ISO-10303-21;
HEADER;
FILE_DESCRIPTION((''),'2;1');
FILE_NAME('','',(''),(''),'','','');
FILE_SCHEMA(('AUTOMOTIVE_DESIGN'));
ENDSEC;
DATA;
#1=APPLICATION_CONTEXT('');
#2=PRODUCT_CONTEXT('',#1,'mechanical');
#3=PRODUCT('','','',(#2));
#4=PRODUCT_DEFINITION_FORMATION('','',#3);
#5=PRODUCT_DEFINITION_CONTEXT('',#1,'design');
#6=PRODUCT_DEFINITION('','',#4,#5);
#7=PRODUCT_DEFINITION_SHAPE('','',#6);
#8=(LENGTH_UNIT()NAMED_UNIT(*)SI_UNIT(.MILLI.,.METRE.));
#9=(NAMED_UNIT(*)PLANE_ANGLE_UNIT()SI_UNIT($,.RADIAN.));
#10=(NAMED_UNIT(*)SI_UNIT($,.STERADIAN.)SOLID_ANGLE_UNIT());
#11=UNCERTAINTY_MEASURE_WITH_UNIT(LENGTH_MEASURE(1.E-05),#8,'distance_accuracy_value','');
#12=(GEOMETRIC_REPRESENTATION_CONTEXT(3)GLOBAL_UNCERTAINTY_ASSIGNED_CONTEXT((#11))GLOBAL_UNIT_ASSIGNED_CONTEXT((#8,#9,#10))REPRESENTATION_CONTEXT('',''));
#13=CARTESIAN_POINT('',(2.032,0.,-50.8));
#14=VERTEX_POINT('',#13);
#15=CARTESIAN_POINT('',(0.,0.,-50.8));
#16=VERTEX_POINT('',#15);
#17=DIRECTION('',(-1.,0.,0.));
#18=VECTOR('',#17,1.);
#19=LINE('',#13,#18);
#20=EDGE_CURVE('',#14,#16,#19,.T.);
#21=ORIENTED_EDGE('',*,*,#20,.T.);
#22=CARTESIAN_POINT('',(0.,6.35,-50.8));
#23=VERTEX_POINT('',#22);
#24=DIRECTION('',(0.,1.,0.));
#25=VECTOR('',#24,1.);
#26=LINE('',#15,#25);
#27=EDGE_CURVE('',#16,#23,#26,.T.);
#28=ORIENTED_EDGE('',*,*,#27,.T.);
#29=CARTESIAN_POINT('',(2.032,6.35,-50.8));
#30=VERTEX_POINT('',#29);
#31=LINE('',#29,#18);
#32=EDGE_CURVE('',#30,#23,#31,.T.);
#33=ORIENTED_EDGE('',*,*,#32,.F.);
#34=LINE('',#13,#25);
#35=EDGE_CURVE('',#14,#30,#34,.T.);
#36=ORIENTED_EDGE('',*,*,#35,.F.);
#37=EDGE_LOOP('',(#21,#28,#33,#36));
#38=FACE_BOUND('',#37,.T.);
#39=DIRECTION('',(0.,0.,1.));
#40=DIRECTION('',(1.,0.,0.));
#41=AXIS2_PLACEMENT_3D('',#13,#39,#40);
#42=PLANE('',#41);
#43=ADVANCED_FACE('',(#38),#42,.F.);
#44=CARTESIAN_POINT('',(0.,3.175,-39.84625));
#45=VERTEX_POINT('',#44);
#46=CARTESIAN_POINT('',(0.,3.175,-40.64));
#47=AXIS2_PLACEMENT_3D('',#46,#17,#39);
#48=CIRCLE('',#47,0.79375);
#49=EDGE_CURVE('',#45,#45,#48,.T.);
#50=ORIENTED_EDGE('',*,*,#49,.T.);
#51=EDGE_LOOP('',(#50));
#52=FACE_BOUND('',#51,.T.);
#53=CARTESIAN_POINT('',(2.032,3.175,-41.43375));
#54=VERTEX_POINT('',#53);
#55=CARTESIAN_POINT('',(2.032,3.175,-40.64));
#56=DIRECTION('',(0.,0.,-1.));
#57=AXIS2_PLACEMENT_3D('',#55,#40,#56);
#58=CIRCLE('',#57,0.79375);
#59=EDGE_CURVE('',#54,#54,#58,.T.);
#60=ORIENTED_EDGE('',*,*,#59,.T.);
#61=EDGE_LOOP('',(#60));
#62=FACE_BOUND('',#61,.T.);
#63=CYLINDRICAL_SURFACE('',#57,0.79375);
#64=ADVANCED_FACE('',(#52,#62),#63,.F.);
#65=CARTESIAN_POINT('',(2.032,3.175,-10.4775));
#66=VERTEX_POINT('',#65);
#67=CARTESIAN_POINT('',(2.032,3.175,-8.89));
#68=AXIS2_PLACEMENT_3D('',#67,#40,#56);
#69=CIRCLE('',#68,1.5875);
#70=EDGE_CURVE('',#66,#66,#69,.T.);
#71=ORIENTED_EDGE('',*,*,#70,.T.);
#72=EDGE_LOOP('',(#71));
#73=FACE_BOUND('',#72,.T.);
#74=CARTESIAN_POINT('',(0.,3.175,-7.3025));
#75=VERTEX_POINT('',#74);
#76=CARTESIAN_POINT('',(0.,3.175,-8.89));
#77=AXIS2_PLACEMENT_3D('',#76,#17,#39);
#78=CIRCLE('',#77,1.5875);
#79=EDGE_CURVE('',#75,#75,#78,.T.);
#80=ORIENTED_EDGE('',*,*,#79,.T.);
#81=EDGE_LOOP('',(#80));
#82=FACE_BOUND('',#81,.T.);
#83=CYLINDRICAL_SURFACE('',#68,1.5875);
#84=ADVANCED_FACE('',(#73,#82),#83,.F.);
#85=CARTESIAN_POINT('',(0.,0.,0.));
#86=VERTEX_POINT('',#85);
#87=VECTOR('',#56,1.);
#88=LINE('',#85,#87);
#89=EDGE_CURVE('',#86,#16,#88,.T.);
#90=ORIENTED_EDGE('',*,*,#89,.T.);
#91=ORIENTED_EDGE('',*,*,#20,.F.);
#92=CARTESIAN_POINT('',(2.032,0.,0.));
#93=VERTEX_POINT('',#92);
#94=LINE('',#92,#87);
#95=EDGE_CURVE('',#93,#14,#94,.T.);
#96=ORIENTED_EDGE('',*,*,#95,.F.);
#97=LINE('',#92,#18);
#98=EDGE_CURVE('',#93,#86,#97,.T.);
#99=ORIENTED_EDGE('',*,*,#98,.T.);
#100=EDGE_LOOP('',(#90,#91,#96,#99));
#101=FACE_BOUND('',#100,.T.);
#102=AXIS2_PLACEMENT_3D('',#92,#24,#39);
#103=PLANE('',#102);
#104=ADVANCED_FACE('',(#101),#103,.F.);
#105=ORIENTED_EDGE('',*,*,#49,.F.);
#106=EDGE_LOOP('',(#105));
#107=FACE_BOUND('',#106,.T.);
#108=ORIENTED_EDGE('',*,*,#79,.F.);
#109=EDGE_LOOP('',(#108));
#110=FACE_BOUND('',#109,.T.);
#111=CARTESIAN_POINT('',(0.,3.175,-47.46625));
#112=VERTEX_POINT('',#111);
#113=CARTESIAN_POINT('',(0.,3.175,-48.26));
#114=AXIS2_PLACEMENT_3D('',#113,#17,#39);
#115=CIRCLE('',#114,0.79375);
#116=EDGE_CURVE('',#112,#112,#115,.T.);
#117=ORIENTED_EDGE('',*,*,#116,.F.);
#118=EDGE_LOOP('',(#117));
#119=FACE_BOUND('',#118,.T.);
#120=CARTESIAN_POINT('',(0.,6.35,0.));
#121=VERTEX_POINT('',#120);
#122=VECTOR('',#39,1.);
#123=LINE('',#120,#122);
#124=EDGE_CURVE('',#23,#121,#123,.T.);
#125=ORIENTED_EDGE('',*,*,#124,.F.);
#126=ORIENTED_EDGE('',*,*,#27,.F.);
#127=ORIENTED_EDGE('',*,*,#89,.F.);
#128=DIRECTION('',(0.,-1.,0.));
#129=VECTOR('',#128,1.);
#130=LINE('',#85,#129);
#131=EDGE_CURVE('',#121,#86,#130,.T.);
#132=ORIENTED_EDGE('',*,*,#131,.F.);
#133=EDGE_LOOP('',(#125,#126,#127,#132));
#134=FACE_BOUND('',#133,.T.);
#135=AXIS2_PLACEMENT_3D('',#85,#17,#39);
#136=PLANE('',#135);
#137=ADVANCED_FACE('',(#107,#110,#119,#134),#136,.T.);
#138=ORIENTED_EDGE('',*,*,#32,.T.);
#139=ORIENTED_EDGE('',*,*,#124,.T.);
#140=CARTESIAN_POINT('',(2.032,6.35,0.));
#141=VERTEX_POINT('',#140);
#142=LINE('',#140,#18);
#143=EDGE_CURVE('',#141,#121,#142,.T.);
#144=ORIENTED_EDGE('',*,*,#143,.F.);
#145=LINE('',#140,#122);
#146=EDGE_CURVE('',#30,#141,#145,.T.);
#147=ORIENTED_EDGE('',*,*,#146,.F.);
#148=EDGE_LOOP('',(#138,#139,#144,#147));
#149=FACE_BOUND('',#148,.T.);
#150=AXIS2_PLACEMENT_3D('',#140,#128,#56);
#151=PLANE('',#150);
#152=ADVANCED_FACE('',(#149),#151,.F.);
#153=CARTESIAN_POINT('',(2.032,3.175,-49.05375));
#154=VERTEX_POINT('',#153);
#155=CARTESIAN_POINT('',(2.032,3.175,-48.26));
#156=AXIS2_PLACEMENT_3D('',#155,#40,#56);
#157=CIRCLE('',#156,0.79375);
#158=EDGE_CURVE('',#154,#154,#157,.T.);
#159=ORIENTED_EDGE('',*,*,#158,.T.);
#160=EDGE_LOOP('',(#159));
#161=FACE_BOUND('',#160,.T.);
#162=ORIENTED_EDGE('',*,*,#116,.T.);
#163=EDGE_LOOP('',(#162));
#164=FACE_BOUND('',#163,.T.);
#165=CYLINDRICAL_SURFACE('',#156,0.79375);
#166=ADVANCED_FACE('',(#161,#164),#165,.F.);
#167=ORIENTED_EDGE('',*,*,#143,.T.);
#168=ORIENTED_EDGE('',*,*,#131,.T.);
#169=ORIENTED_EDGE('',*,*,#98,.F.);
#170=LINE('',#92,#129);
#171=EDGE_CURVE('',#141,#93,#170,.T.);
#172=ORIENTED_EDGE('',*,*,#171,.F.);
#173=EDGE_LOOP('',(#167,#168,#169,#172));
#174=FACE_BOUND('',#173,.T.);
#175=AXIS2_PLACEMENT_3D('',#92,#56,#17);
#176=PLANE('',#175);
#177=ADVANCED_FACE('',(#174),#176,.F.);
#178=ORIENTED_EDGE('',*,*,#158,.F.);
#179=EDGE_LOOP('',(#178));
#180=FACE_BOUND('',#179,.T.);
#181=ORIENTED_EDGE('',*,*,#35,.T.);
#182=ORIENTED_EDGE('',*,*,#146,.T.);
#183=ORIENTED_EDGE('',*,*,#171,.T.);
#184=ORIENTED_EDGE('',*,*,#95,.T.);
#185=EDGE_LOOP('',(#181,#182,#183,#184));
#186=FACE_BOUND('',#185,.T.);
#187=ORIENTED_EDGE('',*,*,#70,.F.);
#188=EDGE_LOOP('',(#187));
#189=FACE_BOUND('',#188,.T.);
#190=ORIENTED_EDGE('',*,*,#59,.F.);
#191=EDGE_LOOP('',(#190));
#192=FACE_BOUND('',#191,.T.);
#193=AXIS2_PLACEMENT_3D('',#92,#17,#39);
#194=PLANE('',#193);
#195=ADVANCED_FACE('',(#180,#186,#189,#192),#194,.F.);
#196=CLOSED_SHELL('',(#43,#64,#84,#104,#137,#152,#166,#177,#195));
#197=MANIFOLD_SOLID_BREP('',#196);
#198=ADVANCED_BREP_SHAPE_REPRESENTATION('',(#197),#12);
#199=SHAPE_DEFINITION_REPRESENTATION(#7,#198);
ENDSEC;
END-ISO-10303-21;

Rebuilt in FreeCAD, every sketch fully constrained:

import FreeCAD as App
import Part
import Sketcher

V = App.Vector
Q = App.Units.Quantity


def add_polygon(sketch, points):
    """Adds a closed chain of lines whose ends are joined by coincident constraints."""
    first, n = sketch.GeometryCount, len(points)
    for a, b in zip(points, points[1:] + points[:1]):
        sketch.addGeometry(Part.LineSegment(App.Vector(*a, 0), App.Vector(*b, 0)), False)
    for i in range(n):
        sketch.addConstraint(Sketcher.Constraint("Coincident", first + i, 2, first + (i + 1) % n, 1))

doc = App.newDocument("Part")
body = doc.addObject("PartDesign::Body", "Body")

# Sketch on YZ plane
sketch1 = body.newObject("Sketcher::SketchObject", "Sketch")
sketch1.AttachmentSupport = (doc.getObject("YZ_Plane"), [""])
sketch1.MapMode = "FlatFace"
add_polygon(sketch1, [(6, 0), (0, 0), (0, -51), (6, -51)])  # lines 0-3
sketch1.addConstraint(Sketcher.Constraint("Horizontal", 0))
sketch1.addConstraint(Sketcher.Constraint("Vertical", 1))
sketch1.addConstraint(Sketcher.Constraint("Horizontal", 2))
sketch1.addConstraint(Sketcher.Constraint("Vertical", 3))
sketch1.addConstraint(Sketcher.Constraint("Coincident", 0, 2, -1, 1))
sketch1.addConstraint(Sketcher.Constraint("DistanceY", 1, 2, 1, 1, Q("2 in")))
sketch1.addConstraint(Sketcher.Constraint("DistanceX", 0, 2, 0, 1, Q("0.25 in")))
pad1 = body.newObject("PartDesign::Pad", "Pad")
pad1.Profile = sketch1
pad1.Length = Q("0.08 in")

# Sketch on YZ plane
sketch2 = body.newObject("Sketcher::SketchObject", "Sketch001")
sketch2.AttachmentSupport = (doc.getObject("YZ_Plane"), [""])
sketch2.MapMode = "FlatFace"
sketch2.AttachmentOffset = App.Placement(V(0, 0, 0.08 * 25.4), App.Rotation())
sketch2.addGeometry(Part.Circle(V(3.2, -40.6, 0), V(0, 0, 1), 0.8), False)
sketch2.addGeometry(Part.Circle(V(3.2, -48.3, 0), V(0, 0, 1), 0.8), False)
sketch2.addConstraint(Sketcher.Constraint("Equal", 0, 1))
sketch2.addConstraint(Sketcher.Constraint("Vertical", 0, 3, 1, 3))
sketch2.addConstraint(Sketcher.Constraint("Diameter", 0, Q("0.0625 in")))
sketch2.addConstraint(Sketcher.Constraint("DistanceY", 0, 3, -1, 1, Q("1.6 in")))
sketch2.addConstraint(Sketcher.Constraint("DistanceY", 1, 3, -1, 1, Q("1.9 in")))
sketch2.addConstraint(Sketcher.Constraint("DistanceX", -1, 1, 0, 3, Q("0.125 in")))
doc.recompute()
hole = body.newObject("PartDesign::Hole", "Hole")
hole.Profile = sketch2
hole.ThreadType = "None"
hole.Diameter = Q("0.0625 in")
hole.DepthType = "Dimension"
hole.Depth = Q("2.76 in")
hole.DrillPoint = "Angled"
hole.DrillPointAngle = 118

# Sketch on YZ plane
sketch3 = body.newObject("Sketcher::SketchObject", "Sketch002")
sketch3.AttachmentSupport = (doc.getObject("YZ_Plane"), [""])
sketch3.MapMode = "FlatFace"
sketch3.AttachmentOffset = App.Placement(V(0, 0, 0.08 * 25.4), App.Rotation())
sketch3.addGeometry(Part.Circle(V(3.2, -8.9, 0), V(0, 0, 1), 1.6), False)
sketch3.addConstraint(Sketcher.Constraint("Diameter", 0, Q("0.125 in")))
sketch3.addConstraint(Sketcher.Constraint("DistanceY", 0, 3, -1, 1, Q("0.35 in")))
sketch3.addConstraint(Sketcher.Constraint("DistanceX", -1, 1, 0, 3, Q("0.125 in")))
doc.recompute()
hole2 = body.newObject("PartDesign::Hole", "Hole001")
hole2.Profile = sketch3
hole2.ThreadType = "None"
hole2.Diameter = Q("0.125 in")
hole2.DepthType = "Dimension"
hole2.Depth = Q("2.76 in")
hole2.DrillPoint = "Angled"
hole2.DrillPointAngle = 118

doc.recompute()
